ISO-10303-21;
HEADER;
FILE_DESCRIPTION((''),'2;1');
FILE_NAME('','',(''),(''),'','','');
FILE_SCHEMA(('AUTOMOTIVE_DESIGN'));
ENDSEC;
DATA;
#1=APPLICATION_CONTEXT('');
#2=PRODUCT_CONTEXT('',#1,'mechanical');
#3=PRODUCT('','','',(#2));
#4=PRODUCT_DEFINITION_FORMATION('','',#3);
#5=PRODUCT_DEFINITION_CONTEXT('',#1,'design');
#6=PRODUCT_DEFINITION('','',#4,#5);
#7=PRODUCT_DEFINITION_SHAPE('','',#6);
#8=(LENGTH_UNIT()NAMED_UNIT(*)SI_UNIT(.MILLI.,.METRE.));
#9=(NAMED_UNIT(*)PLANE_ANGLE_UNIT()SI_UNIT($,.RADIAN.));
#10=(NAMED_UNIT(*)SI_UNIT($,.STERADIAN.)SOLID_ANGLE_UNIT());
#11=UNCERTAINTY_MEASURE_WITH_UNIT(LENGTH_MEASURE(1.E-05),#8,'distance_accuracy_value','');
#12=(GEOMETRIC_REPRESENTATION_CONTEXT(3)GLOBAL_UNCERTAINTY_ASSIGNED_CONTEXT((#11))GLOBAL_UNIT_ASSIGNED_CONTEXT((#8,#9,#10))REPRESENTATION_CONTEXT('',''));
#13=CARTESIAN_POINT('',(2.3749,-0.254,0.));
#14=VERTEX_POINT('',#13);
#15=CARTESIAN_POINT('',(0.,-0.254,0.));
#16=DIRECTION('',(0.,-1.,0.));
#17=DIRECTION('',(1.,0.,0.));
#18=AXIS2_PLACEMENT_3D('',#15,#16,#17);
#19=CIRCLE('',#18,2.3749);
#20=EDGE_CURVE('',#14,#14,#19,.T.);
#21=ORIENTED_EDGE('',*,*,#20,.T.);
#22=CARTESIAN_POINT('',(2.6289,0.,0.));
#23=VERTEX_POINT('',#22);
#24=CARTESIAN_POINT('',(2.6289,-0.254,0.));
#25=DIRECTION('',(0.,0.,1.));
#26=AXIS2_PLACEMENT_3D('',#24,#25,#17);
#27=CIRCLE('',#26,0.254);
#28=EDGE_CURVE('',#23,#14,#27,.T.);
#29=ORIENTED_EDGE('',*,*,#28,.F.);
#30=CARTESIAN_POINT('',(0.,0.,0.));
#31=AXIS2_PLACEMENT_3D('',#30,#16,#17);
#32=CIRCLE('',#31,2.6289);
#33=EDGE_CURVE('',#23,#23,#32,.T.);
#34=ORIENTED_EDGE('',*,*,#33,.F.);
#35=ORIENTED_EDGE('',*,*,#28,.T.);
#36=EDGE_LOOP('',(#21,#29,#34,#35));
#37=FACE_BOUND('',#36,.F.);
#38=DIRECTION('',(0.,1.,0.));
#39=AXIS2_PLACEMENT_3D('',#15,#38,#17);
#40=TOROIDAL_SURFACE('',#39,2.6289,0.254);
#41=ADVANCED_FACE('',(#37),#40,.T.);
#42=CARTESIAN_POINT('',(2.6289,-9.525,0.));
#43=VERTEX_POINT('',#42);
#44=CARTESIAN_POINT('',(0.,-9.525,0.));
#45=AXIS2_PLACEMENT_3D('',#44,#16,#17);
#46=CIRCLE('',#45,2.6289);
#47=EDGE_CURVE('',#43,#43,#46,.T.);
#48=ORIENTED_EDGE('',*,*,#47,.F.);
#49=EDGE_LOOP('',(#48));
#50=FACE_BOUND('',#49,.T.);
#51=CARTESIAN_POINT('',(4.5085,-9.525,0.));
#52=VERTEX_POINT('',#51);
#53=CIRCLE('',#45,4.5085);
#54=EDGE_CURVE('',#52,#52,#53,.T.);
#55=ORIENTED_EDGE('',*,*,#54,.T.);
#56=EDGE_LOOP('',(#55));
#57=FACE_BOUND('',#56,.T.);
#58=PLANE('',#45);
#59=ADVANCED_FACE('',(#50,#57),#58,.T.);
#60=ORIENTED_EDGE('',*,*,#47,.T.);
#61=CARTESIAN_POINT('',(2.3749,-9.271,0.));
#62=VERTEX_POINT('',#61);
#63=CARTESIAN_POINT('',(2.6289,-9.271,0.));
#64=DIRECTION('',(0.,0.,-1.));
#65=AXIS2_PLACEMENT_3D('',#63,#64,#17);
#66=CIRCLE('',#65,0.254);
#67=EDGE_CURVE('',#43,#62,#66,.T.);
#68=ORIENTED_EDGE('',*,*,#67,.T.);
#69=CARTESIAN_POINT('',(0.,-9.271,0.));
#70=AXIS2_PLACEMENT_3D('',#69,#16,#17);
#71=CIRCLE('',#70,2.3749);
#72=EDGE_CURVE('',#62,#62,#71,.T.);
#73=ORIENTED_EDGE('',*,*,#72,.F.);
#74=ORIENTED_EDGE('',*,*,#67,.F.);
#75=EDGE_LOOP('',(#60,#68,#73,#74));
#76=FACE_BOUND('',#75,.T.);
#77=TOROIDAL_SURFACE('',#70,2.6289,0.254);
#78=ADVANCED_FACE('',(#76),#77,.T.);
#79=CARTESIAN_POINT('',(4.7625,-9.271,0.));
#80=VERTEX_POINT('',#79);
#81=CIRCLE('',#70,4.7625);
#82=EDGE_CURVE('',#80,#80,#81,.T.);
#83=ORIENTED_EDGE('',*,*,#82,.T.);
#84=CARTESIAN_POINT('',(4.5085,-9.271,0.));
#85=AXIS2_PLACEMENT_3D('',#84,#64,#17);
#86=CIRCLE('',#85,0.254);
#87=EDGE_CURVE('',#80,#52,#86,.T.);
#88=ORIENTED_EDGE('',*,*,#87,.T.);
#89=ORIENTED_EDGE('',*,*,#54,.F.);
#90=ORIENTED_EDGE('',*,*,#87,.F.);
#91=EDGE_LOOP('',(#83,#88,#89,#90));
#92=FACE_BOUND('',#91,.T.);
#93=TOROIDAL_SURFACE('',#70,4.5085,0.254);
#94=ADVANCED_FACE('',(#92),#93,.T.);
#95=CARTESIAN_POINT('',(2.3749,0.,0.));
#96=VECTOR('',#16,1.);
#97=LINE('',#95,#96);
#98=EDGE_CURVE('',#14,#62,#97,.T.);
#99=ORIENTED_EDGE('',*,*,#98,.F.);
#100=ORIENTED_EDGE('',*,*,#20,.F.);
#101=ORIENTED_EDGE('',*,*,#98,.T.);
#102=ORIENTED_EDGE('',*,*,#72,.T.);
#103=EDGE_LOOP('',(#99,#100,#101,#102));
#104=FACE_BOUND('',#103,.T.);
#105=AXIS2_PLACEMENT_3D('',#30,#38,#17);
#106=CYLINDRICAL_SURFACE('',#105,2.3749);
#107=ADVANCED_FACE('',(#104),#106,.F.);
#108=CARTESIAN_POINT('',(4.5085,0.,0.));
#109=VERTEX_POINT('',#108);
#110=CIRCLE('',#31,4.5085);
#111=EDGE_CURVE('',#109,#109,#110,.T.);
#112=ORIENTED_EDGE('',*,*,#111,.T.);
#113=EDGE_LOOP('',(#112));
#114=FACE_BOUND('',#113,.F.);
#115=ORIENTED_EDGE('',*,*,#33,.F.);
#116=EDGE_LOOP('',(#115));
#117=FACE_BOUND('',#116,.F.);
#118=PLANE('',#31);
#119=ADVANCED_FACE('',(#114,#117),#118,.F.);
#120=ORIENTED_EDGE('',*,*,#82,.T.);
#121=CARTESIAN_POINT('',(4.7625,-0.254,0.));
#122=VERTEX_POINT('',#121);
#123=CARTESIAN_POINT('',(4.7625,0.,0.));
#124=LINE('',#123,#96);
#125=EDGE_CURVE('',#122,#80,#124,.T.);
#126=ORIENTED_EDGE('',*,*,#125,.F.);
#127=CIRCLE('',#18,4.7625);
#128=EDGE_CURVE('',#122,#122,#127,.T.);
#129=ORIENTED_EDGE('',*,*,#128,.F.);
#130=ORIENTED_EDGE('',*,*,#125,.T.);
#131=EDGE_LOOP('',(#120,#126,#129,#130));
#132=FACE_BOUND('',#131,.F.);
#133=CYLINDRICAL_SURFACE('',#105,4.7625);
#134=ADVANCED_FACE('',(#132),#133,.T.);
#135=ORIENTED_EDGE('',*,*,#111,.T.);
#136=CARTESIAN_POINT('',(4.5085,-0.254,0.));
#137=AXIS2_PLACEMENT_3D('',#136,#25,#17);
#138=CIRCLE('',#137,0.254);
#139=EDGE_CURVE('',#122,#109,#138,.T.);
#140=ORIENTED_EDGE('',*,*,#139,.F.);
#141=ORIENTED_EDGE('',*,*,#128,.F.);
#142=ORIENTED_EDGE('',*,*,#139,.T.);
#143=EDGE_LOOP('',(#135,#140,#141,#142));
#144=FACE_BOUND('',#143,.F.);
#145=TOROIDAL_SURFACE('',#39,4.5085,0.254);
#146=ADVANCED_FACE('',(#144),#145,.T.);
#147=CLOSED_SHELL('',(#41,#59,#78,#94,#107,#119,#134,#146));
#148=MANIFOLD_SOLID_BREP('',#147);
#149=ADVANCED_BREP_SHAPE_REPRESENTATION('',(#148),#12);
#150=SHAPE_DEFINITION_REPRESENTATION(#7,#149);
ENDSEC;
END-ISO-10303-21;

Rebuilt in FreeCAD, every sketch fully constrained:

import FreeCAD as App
import Part
import Sketcher

V = App.Vector
Q = App.Units.Quantity


def edges_at(feature, points):
    """Names of the edges that pass closest to the given points."""
    edges = feature.Shape.Edges
    near = lambda p: min(range(len(edges)), key=lambda i: edges[i].distToShape(Part.Vertex(*p))[0])
    return sorted({f"Edge{near(p) + 1}" for p in points})

doc = App.newDocument("Part")
body = doc.addObject("PartDesign::Body", "Body")

# Sketch on XZ plane
sketch1 = body.newObject("Sketcher::SketchObject", "Sketch")
sketch1.AttachmentSupport = (doc.getObject("XZ_Plane"), [""])
sketch1.MapMode = "FlatFace"
sketch1.addGeometry([
    Part.Circle(V(0, 0, 0), V(0, 0, 1), 4.8),
    Part.Circle(V(0, 0, 0), V(0, 0, 1), 2.4),
], False)
sketch1.addConstraint([
    Sketcher.Constraint("Coincident", 0, 3, -1, 1),
    Sketcher.Constraint("Coincident", 1, 3, -1, 1),
    Sketcher.Constraint("Diameter", 0, Q("0.375 in")),
    Sketcher.Constraint("Diameter", 1, Q("0.187 in")),
])
pad1 = body.newObject("PartDesign::Pad", "Pad")
pad1.Profile = sketch1
pad1.Length = Q("0.375 in")
doc.recompute()

fillet = body.newObject("PartDesign::Fillet", "Fillet")
fillet.Base = (pad1, edges_at(pad1, [(-4.763, -9.525, 0), (-4.763, 0, 0)]))
fillet.Radius = Q("0.01 in")
doc.recompute()

fillet2 = body.newObject("PartDesign::Fillet", "Fillet001")
fillet2.Base = (fillet, edges_at(fillet, [(-2.375, -9.525, 0), (-2.375, 0, 0)]))
fillet2.Radius = Q("0.01 in")

doc.recompute()
